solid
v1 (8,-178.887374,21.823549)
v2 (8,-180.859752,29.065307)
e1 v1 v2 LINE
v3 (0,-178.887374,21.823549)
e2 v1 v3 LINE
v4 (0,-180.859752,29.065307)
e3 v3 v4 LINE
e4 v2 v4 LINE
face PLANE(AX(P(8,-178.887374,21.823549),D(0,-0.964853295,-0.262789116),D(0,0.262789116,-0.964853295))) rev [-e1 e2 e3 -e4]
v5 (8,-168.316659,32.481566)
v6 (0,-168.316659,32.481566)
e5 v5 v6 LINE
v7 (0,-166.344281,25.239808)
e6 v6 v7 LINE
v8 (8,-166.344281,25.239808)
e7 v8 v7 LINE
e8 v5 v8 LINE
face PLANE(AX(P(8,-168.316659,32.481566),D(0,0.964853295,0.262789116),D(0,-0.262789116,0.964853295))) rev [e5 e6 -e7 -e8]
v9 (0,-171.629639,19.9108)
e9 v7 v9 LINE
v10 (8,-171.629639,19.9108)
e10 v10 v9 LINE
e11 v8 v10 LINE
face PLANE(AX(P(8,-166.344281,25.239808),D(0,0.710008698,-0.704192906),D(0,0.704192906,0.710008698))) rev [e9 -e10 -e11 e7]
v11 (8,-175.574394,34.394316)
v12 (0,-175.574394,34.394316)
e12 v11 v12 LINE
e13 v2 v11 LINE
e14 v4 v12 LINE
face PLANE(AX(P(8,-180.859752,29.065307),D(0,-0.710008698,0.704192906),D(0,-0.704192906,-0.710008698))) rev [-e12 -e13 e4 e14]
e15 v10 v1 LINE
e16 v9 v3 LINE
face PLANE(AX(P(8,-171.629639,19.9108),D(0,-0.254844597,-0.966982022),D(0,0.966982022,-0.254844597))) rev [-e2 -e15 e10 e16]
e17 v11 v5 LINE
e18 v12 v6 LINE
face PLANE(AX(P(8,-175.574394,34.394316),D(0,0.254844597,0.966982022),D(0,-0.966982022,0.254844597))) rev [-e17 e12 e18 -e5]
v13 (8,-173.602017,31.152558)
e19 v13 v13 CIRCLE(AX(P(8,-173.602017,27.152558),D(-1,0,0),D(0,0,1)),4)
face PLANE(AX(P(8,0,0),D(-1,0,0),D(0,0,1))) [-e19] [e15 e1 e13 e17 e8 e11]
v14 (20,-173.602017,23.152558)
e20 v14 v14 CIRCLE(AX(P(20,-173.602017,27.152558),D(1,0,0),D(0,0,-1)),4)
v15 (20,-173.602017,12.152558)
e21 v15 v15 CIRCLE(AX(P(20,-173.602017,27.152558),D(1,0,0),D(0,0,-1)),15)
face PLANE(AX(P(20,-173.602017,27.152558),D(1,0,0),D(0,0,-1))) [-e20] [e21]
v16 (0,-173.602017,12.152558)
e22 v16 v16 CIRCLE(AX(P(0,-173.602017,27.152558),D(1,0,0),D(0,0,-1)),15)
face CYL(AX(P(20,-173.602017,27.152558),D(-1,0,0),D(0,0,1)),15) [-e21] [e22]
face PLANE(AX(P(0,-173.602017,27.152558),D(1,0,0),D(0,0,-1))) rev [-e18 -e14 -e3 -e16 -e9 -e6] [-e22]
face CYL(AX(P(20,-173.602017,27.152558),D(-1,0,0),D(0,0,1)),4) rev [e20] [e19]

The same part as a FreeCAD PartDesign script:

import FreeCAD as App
import Part
import Sketcher
Q = App.Units.Quantity

doc = App.newDocument("Part")
body = doc.addObject("PartDesign::Body", "Body")

# Sketch on YZ plane
sketch1 = doc.addObject("Sketcher::SketchObject", "Sketch")
body.addObject(sketch1)
sketch1.AttachmentSupport = (doc.YZ_Plane, [""])
sketch1.MapMode = "FlatFace"
sketch1.addGeometry([
    Part.Circle(App.Vector(-173.6, 27.2, 0), App.Vector(0, 0, 1), 15),
    Part.Circle(App.Vector(-173.6, 27.2, 0), App.Vector(0, 0, 1), 4),
], False)
sketch1.addConstraint([
    Sketcher.Constraint("Coincident", 1, 3, 0, 3),
    Sketcher.Constraint("Diameter", 0, Q("30 mm")),
    Sketcher.Constraint("Diameter", 1, Q("8 mm")),
    Sketcher.Constraint("DistanceX", 0, 3, -1, 1, Q("173.602017 mm")),
    Sketcher.Constraint("DistanceY", -1, 1, 0, 3, Q("27.152558 mm")),
])
pad1 = doc.addObject("PartDesign::Pad", "Pad")
body.addObject(pad1)
pad1.Profile = sketch1
pad1.Length = 20

# Sketch on YZ plane
sketch2 = doc.addObject("Sketcher::SketchObject", "Sketch001")
body.addObject(sketch2)
sketch2.AttachmentSupport = (doc.YZ_Plane, [""])
sketch2.MapMode = "FlatFace"
sketch2.addGeometry([
    Part.LineSegment(App.Vector(-179, 22, 0), App.Vector(-181, 29, 0)),  # 0
    Part.LineSegment(App.Vector(-181, 29, 0), App.Vector(-176, 34, 0)),  # 1
    Part.LineSegment(App.Vector(-176, 34, 0), App.Vector(-168, 32, 0)),  # 2
    Part.LineSegment(App.Vector(-168, 32, 0), App.Vector(-166, 25, 0)),  # 3
    Part.LineSegment(App.Vector(-166, 25, 0), App.Vector(-172, 20, 0)),  # 4
    Part.LineSegment(App.Vector(-172, 20, 0), App.Vector(-179, 22, 0)),  # 5
], False)
sketch2.addConstraint([
    Sketcher.Constraint("Coincident", 0, 2, 1, 1),
    Sketcher.Constraint("Coincident", 1, 2, 2, 1),
    Sketcher.Constraint("Coincident", 2, 2, 3, 1),
    Sketcher.Constraint("Coincident", 3, 2, 4, 1),
    Sketcher.Constraint("Coincident", 4, 2, 5, 1),
    Sketcher.Constraint("Coincident", 5, 2, 0, 1),
    Sketcher.Constraint("Parallel", 0, 3),
    Sketcher.Constraint("Parallel", 1, 4),
    Sketcher.Constraint("Parallel", 2, 5),
    Sketcher.Constraint("Equal", 0, 1),
    Sketcher.Constraint("Equal", 1, 2),
    Sketcher.Constraint("Equal", 2, 3),
    Sketcher.Constraint("DistanceY", -1, 1, 4, 2, Q("19.9108 mm")),
    Sketcher.Constraint("DistanceY", 3, 2, 0, 2, Q("3.8255 mm")),
    Sketcher.Constraint("DistanceX", 2, 2, -1, 1, Q("168.316659 mm")),
    Sketcher.Constraint("DistanceX", 3, 2, -1, 1, Q("166.344281 mm")),
    Sketcher.Constraint("DistanceX", 4, 2, -1, 1, Q("171.629639 mm")),
    Sketcher.Constraint("DistanceY", -1, 1, 5, 2, Q("21.823549 mm")),
])
pocket1 = doc.addObject("PartDesign::Pocket", "Pocket")
body.addObject(pocket1)
pocket1.Profile = sketch2
pocket1.Length = 8
pocket1.Reversed = True

doc.recompute()
